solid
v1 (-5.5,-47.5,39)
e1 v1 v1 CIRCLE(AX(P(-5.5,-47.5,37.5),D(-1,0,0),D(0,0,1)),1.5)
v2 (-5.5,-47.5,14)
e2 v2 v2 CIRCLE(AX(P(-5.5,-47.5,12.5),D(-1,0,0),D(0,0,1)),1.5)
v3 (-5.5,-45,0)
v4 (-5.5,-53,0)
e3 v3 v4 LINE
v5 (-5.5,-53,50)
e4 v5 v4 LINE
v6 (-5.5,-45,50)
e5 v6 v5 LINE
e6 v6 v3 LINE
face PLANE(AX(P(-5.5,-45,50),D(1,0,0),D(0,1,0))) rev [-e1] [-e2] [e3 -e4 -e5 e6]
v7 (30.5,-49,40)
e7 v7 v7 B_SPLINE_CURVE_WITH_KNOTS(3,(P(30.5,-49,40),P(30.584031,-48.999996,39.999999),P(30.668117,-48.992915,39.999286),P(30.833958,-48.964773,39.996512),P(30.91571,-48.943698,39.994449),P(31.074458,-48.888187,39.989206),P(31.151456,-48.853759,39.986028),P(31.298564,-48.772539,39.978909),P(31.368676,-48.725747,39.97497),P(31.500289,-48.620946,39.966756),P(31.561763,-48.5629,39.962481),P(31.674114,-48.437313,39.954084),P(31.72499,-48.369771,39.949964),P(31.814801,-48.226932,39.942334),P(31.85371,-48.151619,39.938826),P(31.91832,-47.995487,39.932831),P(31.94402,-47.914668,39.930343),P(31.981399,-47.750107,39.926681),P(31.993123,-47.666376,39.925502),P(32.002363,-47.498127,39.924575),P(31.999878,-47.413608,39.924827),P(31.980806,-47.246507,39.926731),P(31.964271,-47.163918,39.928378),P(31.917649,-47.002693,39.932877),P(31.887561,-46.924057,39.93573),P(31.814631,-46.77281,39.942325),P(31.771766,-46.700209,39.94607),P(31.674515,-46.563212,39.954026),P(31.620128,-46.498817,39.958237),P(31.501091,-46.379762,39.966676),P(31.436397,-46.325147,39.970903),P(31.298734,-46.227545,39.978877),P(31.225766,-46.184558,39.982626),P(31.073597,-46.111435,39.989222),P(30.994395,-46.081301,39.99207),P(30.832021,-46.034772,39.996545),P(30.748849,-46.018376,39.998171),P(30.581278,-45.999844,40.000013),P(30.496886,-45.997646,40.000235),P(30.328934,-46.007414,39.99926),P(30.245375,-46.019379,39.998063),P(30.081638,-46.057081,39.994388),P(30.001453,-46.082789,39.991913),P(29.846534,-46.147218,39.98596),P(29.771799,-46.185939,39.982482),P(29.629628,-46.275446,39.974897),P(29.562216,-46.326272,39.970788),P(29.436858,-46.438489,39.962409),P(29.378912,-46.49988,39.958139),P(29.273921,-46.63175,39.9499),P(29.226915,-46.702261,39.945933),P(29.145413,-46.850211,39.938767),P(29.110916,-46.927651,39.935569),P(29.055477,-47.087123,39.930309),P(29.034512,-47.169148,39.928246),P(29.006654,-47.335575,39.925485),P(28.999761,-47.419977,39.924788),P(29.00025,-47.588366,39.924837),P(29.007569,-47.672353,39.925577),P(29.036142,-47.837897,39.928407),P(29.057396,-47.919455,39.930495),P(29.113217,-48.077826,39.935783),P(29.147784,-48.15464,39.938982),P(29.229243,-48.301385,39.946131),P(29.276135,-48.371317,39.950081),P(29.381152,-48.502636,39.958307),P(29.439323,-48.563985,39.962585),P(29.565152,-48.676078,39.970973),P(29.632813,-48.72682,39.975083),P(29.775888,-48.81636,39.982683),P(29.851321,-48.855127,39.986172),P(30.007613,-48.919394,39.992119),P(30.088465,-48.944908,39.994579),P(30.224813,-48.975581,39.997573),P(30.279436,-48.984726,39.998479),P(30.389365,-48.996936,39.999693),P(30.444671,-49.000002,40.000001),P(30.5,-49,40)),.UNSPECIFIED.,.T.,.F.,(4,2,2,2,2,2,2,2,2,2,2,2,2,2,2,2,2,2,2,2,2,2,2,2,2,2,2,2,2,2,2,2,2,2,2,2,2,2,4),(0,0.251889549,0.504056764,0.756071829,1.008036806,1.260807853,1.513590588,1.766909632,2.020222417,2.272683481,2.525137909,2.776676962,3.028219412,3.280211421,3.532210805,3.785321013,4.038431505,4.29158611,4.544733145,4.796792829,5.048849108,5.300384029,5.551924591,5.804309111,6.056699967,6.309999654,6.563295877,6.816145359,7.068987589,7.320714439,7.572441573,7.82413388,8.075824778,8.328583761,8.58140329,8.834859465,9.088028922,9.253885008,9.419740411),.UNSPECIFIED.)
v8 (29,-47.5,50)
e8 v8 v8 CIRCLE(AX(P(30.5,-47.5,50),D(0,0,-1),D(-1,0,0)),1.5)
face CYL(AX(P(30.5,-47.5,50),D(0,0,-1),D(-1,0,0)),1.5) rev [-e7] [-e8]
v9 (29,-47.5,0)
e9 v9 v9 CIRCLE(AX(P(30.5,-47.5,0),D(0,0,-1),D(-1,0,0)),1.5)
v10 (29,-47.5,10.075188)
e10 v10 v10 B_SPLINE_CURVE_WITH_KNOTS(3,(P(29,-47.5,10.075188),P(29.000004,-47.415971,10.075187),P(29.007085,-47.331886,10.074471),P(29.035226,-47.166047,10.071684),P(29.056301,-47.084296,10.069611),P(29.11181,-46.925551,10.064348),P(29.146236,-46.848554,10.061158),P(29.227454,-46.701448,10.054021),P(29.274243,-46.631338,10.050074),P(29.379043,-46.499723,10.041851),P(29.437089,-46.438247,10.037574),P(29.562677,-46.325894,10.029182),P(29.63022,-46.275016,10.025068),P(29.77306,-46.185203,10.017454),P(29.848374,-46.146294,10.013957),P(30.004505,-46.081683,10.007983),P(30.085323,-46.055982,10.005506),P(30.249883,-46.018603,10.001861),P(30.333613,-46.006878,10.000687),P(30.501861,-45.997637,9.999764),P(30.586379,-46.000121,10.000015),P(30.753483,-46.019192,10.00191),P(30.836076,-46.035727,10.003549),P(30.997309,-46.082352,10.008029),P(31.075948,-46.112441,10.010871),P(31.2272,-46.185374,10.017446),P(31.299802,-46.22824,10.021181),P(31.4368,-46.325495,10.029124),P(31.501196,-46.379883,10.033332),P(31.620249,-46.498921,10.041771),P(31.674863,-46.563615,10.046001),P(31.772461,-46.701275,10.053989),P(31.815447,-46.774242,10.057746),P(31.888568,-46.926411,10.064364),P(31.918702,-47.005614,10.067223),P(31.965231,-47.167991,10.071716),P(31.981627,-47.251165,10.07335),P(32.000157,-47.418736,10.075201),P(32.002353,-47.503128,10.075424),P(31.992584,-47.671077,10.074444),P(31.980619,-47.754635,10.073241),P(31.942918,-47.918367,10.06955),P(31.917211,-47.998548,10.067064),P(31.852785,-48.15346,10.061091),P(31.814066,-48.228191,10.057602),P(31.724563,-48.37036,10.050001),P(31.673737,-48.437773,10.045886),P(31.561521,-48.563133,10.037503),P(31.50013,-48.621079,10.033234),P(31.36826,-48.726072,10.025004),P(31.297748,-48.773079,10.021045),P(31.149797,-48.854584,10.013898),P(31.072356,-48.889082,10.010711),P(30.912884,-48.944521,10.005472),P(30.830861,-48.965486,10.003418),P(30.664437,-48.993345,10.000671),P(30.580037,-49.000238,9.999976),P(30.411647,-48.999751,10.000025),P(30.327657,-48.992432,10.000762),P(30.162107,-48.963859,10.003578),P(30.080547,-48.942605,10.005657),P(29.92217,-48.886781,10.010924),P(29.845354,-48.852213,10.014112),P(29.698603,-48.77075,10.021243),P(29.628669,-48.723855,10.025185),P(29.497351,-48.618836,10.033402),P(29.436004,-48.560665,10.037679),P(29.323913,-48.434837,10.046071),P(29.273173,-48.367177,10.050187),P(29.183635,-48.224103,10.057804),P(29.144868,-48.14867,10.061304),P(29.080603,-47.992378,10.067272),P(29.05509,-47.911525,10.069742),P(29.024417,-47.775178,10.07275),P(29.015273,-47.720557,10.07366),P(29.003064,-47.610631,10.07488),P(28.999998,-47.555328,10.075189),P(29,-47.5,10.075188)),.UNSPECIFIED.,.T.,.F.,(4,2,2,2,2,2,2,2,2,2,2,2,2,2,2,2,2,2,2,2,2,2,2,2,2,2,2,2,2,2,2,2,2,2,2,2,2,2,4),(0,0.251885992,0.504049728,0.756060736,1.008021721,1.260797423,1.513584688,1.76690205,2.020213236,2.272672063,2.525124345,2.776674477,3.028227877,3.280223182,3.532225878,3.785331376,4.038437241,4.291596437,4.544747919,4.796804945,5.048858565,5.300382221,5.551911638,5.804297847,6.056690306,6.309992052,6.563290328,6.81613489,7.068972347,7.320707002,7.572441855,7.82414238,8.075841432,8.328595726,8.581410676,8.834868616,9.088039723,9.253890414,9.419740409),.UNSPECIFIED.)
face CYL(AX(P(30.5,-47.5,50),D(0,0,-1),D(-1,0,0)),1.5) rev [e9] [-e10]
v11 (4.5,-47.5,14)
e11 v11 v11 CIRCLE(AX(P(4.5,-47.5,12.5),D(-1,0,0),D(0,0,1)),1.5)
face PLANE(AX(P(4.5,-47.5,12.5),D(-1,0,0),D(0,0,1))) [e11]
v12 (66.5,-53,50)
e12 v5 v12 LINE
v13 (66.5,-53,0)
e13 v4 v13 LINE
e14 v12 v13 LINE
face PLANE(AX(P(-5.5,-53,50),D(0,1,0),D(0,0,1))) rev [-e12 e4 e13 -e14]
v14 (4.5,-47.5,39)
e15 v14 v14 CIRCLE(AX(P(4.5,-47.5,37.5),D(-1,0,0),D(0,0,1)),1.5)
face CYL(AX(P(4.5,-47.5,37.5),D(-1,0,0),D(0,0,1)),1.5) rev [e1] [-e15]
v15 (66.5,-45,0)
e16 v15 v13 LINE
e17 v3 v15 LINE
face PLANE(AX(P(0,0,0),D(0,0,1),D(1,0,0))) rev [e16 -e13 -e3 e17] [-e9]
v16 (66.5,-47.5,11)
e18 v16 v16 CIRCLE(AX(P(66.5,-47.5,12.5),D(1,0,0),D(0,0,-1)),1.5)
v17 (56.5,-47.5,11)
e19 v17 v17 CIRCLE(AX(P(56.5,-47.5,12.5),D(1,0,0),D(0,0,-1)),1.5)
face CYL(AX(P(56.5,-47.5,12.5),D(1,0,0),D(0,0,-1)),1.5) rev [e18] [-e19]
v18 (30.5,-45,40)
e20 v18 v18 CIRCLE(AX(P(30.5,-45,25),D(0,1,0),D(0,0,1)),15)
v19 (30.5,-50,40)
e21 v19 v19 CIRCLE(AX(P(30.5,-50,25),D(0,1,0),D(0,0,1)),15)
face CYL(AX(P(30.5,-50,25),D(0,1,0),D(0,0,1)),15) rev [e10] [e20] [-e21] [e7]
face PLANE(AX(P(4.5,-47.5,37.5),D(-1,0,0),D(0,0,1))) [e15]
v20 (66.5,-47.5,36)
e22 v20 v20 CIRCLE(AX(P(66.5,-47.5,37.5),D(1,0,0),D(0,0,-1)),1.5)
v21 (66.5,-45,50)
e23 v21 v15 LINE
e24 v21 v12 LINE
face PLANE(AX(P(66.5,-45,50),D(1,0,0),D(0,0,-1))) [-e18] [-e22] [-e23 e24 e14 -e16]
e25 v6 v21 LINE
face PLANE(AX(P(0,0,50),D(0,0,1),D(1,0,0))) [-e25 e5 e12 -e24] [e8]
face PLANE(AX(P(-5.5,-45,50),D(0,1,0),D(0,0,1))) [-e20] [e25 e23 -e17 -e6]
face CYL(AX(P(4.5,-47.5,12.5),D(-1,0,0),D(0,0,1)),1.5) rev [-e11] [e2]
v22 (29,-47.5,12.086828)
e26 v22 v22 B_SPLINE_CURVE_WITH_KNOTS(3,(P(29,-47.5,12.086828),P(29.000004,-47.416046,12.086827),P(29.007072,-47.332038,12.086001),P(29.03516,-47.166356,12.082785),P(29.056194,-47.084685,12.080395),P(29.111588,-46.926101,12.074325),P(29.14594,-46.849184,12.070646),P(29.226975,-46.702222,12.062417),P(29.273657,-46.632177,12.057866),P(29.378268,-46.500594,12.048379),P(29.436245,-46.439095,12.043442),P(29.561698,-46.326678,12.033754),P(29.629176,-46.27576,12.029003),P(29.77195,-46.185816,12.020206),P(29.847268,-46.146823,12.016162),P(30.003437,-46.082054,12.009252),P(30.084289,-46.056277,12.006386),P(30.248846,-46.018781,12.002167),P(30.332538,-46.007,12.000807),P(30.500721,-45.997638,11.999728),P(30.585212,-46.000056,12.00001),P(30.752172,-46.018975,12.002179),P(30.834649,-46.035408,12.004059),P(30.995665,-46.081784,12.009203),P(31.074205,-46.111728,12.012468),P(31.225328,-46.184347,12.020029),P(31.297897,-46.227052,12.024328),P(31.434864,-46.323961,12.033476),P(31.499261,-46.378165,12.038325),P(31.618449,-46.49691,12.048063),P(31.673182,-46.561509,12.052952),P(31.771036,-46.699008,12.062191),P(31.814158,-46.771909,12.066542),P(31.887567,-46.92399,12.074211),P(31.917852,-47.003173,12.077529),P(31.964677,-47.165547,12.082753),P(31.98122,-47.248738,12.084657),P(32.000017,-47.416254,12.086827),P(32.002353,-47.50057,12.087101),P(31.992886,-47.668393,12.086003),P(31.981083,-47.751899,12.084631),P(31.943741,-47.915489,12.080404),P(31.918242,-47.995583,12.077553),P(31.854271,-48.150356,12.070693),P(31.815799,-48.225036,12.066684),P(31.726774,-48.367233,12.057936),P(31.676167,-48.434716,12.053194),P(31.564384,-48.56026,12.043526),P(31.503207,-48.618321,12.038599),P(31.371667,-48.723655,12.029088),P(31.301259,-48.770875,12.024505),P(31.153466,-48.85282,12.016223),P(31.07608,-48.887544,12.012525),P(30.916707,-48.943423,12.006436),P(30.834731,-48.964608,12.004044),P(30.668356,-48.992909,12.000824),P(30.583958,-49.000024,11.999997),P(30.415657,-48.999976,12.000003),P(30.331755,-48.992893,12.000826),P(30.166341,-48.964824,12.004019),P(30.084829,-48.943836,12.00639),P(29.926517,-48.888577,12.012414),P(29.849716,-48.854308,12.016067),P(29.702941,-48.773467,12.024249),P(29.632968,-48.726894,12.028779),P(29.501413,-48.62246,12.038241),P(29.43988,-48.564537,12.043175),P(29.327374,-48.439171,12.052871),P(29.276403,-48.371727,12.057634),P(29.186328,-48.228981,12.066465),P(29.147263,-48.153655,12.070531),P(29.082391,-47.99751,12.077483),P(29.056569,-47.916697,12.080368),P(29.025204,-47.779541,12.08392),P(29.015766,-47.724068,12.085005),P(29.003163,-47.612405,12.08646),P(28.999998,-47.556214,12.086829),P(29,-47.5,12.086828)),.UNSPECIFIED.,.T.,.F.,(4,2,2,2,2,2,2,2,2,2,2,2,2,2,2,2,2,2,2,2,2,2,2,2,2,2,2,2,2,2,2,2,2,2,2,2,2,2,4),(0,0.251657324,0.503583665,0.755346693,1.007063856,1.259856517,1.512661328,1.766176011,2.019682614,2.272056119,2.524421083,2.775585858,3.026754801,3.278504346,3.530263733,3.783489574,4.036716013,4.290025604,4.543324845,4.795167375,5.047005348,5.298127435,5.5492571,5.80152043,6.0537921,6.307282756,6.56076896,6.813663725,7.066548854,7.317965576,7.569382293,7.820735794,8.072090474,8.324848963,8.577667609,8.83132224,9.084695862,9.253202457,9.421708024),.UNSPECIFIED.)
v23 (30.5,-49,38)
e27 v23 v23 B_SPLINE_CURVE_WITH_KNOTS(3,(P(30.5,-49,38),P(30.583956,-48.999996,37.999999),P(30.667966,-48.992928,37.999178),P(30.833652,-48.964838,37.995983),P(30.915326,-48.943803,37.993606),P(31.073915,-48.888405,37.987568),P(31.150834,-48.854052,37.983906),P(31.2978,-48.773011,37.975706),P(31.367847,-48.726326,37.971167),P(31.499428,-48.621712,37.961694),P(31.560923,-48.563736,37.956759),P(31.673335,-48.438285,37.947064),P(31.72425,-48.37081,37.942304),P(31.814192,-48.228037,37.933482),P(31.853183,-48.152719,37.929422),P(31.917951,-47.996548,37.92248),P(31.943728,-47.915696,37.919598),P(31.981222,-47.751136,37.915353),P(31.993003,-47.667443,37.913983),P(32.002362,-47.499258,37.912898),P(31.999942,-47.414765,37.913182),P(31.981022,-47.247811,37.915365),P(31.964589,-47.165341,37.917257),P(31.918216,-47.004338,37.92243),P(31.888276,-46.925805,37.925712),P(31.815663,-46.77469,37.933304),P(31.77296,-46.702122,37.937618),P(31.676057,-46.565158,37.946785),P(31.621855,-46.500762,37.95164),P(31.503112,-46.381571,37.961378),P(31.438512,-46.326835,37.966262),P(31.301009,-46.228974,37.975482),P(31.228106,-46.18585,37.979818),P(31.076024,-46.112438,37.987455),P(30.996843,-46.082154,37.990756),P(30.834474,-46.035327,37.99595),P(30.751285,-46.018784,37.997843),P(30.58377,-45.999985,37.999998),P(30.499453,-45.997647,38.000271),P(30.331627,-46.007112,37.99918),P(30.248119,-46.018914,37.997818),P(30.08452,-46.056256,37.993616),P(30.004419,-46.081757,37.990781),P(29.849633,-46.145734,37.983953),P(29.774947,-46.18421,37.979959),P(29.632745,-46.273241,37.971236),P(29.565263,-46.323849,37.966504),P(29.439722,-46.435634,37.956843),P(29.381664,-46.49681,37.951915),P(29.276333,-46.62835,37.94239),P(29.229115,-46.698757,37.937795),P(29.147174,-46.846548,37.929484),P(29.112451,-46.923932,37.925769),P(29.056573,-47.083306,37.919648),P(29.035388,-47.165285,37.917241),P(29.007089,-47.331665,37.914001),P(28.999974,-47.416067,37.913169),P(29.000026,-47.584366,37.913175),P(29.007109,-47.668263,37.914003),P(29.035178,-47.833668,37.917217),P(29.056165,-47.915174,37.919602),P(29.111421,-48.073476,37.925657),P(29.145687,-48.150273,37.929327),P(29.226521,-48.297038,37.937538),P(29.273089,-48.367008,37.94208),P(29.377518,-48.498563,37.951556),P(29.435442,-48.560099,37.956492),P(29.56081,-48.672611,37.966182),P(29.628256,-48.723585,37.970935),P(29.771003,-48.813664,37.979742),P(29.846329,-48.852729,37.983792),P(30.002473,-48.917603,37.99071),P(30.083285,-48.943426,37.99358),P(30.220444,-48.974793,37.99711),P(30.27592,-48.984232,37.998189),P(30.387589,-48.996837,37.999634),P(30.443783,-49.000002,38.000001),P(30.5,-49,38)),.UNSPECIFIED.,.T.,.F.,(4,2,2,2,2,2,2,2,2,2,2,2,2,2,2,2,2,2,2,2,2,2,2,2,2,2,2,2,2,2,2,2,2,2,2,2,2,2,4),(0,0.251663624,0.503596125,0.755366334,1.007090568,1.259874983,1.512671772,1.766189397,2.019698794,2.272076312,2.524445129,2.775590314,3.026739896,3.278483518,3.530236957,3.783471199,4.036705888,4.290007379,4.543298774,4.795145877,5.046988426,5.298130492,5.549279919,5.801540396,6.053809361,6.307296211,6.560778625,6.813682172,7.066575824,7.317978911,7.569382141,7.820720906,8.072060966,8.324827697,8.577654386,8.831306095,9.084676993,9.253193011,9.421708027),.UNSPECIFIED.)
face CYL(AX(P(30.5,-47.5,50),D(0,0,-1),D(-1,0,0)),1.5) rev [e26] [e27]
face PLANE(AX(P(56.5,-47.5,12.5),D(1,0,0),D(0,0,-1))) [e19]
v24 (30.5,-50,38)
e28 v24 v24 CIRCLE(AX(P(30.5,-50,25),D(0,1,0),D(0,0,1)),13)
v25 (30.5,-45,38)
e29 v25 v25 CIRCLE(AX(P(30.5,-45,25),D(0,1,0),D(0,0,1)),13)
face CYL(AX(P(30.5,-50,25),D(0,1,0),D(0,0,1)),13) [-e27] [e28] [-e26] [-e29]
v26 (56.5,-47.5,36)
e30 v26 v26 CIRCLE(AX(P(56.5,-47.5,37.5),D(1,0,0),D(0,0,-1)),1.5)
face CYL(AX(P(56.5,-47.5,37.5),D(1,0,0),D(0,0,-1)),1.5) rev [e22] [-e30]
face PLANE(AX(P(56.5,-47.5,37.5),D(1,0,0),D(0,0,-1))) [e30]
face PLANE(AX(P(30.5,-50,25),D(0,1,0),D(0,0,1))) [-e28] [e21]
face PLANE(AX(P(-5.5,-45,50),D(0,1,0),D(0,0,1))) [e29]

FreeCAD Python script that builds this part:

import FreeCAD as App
import Part
import Sketcher
from FreeCAD import Vector


def add_polygon(sketch, points):
    """Adds a closed chain of lines whose ends are joined by coincident constraints."""
    first, n = sketch.GeometryCount, len(points)
    for a, b in zip(points, points[1:] + points[:1]):
        sketch.addGeometry(Part.LineSegment(App.Vector(*a, 0), App.Vector(*b, 0)), False)
    for i in range(n):
        sketch.addConstraint(Sketcher.Constraint("Coincident", first + i, 2, first + (i + 1) % n, 1))

doc = App.newDocument("Part")
body = doc.addObject("PartDesign::Body", "Body")

sketch1 = doc.addObject("Sketcher::SketchObject", "Sketch")
body.addObject(sketch1)
sketch1.AttachmentSupport = (doc.XY_Plane, [""])
sketch1.MapMode = "FlatFace"
add_polygon(sketch1, [(-6, -45), (-6, -53), (66, -53), (66, -45)])
sketch1.addConstraint([
    Sketcher.Constraint("Vertical", 0),
    Sketcher.Constraint("Horizontal", 1),
    Sketcher.Constraint("Vertical", 2),
    Sketcher.Constraint("Horizontal", 3),
    Sketcher.Constraint("DistanceX", 1, 1, 1, 2, 72.0),
    Sketcher.Constraint("DistanceY", 0, 2, 0, 1, 8.0),
    Sketcher.Constraint("DistanceY", 0, 2, -1, 1, 53.0),
    Sketcher.Constraint("DistanceX", 0, 2, -1, 1, 5.5),
])
pad1 = doc.addObject("PartDesign::Pad", "Pad")
body.addObject(pad1)
pad1.Profile = sketch1
pad1.Length = 50

sketch2 = doc.addObject("Sketcher::SketchObject", "Sketch001")
body.addObject(sketch2)
sketch2.AttachmentSupport = (doc.XZ_Plane, [""])
sketch2.MapMode = "FlatFace"
sketch2.AttachmentOffset = App.Placement(Vector(0, 0, 45), App.Rotation())
sketch2.addGeometry([
    Part.Circle(Vector(30, 25, 0), Vector(0, 0, 1), 15),
    Part.Circle(Vector(30, 25, 0), Vector(0, 0, 1), 13),
], False)
sketch2.addConstraint([
    Sketcher.Constraint("Coincident", 1, 3, 0, 3),
    Sketcher.Constraint("Diameter", 0, 30.0),
    Sketcher.Constraint("Diameter", 1, 26.0),
    Sketcher.Constraint("DistanceY", -1, 1, 0, 3, 25.0),
    Sketcher.Constraint("DistanceX", -1, 1, 0, 3, 30.5),
])
pocket1 = doc.addObject("PartDesign::Pocket", "Pocket")
body.addObject(pocket1)
pocket1.Profile = sketch2
pocket1.Length = 5
pocket1.Reversed = True

sketch3 = doc.addObject("Sketcher::SketchObject", "Sketch002")
body.addObject(sketch3)
sketch3.AttachmentSupport = (doc.YZ_Plane, [""])
sketch3.MapMode = "FlatFace"
sketch3.AttachmentOffset = App.Placement(Vector(0, 0, -5.5), App.Rotation())
sketch3.addGeometry([
    Part.Circle(Vector(-47.5, 12.5, 0), Vector(0, 0, 1), 1.5),
    Part.Circle(Vector(-47.5, 37.5, 0), Vector(0, 0, 1), 1.5),
], False)
sketch3.addConstraint([
    Sketcher.Constraint("Equal", 0, 1),
    Sketcher.Constraint("Vertical", 0, 3, 1, 3),
    Sketcher.Constraint("Diameter", 0, 3.0),
    Sketcher.Constraint("DistanceY", 0, 3, 1, 3, 25.0),
    Sketcher.Constraint("DistanceX", 0, 3, -1, 1, 47.5),
    Sketcher.Constraint("DistanceY", -1, 1, 0, 3, 12.5),
])
pocket2 = doc.addObject("PartDesign::Pocket", "Pocket001")
body.addObject(pocket2)
pocket2.Profile = sketch3
pocket2.Length = 10
pocket2.Reversed = True

sketch4 = doc.addObject("Sketcher::SketchObject", "Sketch003")
body.addObject(sketch4)
sketch4.AttachmentSupport = (doc.YZ_Plane, [""])
sketch4.MapMode = "FlatFace"
sketch4.AttachmentOffset = App.Placement(Vector(0, 0, 66.5), App.Rotation())
sketch4.addGeometry([
    Part.Circle(Vector(-47.5, 37.5, 0), Vector(0, 0, 1), 1.5),
    Part.Circle(Vector(-47.5, 12.5, 0), Vector(0, 0, 1), 1.5),
], False)
sketch4.addConstraint([
    Sketcher.Constraint("Equal", 0, 1),
    Sketcher.Constraint("Vertical", 0, 3, 1, 3),
    Sketcher.Constraint("Diameter", 0, 3.0),
    Sketcher.Constraint("DistanceY", 1, 3, 0, 3, 25.0),
    Sketcher.Constraint("DistanceX", 0, 3, -1, 1, 47.5),
    Sketcher.Constraint("DistanceY", -1, 1, 0, 3, 37.5),
])
pocket3 = doc.addObject("PartDesign::Pocket", "Pocket002")
body.addObject(pocket3)
pocket3.Profile = sketch4
pocket3.Length = 10

sketch5 = doc.addObject("Sketcher::SketchObject", "Sketch004")
body.addObject(sketch5)
sketch5.AttachmentSupport = (doc.XY_Plane, [""])
sketch5.MapMode = "FlatFace"
sketch5.addGeometry(Part.Circle(Vector(30.5, -47.5, 0), Vector(0, 0, 1), 1.5), False)
sketch5.addConstraint([
    Sketcher.Constraint("Diameter", 0, 3.0),
    Sketcher.Constraint("DistanceX", -1, 1, 0, 3, 30.5),
    Sketcher.Constraint("DistanceY", 0, 3, -1, 1, 47.5),
])
pocket4 = doc.addObject("PartDesign::Pocket", "Pocket003")
body.addObject(pocket4)
pocket4.Profile = sketch5
pocket4.Type = "ThroughAll"
pocket4.Reversed = True

doc.recompute()
